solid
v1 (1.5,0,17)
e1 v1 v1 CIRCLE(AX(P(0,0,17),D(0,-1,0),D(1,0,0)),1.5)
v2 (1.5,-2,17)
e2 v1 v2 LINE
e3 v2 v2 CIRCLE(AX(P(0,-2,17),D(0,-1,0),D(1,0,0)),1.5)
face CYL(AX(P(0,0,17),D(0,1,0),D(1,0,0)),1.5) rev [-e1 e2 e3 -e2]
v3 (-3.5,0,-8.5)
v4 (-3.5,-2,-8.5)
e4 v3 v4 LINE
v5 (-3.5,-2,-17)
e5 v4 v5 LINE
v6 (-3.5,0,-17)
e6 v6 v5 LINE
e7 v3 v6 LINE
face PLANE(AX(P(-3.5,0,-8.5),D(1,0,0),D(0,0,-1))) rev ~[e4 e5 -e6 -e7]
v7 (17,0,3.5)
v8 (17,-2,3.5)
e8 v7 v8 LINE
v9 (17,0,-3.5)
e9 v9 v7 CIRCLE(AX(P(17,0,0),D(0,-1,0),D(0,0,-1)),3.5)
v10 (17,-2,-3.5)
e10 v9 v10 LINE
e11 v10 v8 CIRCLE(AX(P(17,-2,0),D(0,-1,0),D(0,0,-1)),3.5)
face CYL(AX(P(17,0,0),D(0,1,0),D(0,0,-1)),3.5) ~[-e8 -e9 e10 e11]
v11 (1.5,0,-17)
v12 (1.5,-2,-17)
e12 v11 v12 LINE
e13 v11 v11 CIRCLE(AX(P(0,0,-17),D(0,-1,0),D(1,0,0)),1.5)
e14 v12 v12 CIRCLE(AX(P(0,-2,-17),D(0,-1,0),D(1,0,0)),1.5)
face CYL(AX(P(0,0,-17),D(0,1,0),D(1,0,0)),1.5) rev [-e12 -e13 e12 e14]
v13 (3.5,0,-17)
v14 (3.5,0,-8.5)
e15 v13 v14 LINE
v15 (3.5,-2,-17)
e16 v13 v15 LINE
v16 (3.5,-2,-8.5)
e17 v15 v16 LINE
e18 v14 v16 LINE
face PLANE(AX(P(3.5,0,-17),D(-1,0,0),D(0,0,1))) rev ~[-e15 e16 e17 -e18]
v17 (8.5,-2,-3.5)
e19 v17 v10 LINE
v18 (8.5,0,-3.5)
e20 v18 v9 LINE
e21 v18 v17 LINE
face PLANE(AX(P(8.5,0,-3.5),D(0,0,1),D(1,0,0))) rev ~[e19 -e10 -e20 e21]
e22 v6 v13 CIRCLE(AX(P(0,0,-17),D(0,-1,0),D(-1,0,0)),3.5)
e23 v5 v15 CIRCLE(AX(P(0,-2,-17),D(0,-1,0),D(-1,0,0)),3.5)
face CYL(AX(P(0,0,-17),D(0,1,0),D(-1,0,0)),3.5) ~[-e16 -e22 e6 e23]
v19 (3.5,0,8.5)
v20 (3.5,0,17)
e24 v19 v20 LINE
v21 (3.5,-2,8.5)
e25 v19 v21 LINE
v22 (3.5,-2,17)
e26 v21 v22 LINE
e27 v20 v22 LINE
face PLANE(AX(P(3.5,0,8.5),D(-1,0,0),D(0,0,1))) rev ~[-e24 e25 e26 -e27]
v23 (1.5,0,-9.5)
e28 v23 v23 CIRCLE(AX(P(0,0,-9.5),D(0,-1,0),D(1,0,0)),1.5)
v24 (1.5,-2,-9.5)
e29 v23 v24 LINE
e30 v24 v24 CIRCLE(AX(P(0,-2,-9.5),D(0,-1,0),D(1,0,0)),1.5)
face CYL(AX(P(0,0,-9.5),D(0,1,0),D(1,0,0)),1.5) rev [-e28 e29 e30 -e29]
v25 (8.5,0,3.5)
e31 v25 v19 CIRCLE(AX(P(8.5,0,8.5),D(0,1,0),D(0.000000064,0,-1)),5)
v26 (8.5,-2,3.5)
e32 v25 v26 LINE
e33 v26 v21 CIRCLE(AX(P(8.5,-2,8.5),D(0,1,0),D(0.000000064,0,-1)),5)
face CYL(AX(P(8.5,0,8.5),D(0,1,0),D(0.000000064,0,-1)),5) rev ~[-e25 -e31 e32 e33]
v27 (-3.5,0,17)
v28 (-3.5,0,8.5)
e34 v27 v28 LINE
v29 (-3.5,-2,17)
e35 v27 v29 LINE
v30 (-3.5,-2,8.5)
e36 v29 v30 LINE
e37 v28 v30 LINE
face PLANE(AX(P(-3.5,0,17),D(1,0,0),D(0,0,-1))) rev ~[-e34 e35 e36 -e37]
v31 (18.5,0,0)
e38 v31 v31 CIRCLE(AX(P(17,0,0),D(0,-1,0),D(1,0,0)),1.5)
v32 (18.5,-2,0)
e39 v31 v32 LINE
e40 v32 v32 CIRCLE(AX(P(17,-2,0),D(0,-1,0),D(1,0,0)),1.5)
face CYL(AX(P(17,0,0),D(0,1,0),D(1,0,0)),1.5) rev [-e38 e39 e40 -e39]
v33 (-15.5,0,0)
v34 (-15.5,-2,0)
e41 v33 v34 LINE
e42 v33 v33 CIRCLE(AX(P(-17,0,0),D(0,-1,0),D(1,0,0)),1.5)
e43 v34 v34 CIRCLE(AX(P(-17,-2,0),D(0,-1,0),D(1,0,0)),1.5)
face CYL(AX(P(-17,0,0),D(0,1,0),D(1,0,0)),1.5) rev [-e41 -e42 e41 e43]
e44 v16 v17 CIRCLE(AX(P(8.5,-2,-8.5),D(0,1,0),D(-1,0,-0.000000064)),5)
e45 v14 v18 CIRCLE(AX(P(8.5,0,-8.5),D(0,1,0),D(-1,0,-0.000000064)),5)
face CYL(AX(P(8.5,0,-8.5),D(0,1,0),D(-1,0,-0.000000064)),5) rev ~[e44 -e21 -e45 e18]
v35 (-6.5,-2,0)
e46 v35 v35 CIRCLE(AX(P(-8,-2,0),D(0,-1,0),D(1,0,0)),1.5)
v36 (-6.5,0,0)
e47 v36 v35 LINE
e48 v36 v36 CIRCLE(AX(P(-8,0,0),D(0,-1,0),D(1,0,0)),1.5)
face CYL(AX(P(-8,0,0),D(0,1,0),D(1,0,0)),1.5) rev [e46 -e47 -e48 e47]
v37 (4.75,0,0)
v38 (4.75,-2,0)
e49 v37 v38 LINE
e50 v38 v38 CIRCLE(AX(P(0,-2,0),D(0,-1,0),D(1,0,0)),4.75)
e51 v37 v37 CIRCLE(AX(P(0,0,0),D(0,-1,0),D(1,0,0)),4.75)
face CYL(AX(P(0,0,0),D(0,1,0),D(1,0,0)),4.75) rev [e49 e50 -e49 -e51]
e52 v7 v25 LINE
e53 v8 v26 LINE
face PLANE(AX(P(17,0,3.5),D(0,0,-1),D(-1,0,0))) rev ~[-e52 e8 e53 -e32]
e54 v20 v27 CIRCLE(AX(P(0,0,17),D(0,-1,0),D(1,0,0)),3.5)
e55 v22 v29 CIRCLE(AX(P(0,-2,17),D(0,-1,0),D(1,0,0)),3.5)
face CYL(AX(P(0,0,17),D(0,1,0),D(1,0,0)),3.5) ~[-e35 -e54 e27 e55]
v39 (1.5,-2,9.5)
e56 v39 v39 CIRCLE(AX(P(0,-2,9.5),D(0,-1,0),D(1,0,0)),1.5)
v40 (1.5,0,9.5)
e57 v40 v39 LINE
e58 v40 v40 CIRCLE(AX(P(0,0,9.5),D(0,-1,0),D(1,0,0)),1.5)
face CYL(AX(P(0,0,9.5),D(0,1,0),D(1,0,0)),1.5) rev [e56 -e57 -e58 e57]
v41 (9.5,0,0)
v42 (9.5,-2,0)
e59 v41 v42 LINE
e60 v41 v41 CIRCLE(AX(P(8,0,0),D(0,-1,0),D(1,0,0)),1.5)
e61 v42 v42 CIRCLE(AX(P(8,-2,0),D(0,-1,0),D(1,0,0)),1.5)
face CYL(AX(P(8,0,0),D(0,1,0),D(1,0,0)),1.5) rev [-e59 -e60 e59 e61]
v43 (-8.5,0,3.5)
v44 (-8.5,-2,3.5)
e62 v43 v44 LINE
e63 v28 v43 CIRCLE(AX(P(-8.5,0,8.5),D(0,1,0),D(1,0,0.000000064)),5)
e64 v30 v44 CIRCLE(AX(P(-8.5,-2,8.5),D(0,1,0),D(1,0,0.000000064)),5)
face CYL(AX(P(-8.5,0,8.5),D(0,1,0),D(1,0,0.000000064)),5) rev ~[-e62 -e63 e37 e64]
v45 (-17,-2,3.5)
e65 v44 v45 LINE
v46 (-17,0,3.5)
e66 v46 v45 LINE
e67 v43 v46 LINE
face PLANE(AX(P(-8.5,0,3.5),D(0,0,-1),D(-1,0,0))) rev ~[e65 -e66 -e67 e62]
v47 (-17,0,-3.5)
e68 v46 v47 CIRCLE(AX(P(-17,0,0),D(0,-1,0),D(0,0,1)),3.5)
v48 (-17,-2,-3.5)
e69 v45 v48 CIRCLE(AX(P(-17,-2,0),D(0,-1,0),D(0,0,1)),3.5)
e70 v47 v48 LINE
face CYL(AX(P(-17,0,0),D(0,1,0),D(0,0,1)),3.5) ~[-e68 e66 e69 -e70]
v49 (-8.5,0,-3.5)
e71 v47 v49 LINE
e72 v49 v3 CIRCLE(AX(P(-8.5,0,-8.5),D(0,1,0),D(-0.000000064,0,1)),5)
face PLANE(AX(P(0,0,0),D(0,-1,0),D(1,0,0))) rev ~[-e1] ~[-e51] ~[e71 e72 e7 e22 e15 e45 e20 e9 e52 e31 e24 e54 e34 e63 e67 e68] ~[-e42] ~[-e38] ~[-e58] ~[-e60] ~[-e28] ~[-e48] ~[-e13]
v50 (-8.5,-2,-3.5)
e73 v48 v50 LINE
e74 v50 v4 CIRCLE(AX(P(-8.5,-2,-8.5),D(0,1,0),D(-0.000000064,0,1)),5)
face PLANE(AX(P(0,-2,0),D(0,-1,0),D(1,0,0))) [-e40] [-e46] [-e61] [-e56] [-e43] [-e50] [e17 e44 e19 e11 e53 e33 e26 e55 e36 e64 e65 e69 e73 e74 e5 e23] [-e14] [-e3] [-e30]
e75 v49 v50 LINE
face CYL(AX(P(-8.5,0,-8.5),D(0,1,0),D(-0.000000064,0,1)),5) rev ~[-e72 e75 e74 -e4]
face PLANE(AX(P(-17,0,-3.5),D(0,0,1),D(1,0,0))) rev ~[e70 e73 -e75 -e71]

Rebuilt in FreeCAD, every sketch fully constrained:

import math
import FreeCAD as App
import Part
import Sketcher
from FreeCAD import Vector

doc = App.newDocument("Part")
body = doc.addObject("PartDesign::Body", "Body")

sketch1 = body.newObject("Sketcher::SketchObject", "Sketch")
sketch1.AttachmentSupport = (doc.getObject("XZ_Plane"), [""])
sketch1.MapMode = "FlatFace"
sketch1.addGeometry([
    Part.LineSegment(Vector(-8.5, 3.5, 0), Vector(-17, 3.5, 0)),
    Part.ArcOfCircle(Part.Circle(Vector(-17, 0, 0), Vector(0, 0, 1), 3.5), math.radians(90), math.radians(270)),
    Part.LineSegment(Vector(-17, -3.5, 0), Vector(-8.5, -3.5, 0)),
    Part.ArcOfCircle(Part.Circle(Vector(-8.5, -8.5, 0), Vector(0, 0, 1), 5), math.radians(-0.000004), math.radians(90.000004)),
    Part.LineSegment(Vector(-3.5, -8.5, 0), Vector(-3.5, -17, 0)),
    Part.ArcOfCircle(Part.Circle(Vector(0, -17, 0), Vector(0, 0, 1), 3.5), math.radians(180), math.radians(360)),
    Part.LineSegment(Vector(3.5, -17, 0), Vector(3.5, -8.5, 0)),
    Part.ArcOfCircle(Part.Circle(Vector(8.5, -8.5, 0), Vector(0, 0, 1), 5), math.radians(89.999996), math.radians(180.000004)),
    Part.LineSegment(Vector(8.5, -3.5, 0), Vector(17, -3.5, 0)),
    Part.ArcOfCircle(Part.Circle(Vector(17, 0, 0), Vector(0, 0, 1), 3.5), math.radians(-90), math.radians(90)),
    Part.LineSegment(Vector(17, 3.5, 0), Vector(8.5, 3.5, 0)),
    Part.ArcOfCircle(Part.Circle(Vector(8.5, 8.5, 0), Vector(0, 0, 1), 5), math.radians(179.999996), math.radians(270.000004)),
    Part.LineSegment(Vector(3.5, 8.5, 0), Vector(3.5, 17, 0)),
    Part.ArcOfCircle(Part.Circle(Vector(0, 17, 0), Vector(0, 0, 1), 3.5), math.radians(0), math.radians(180)),
    Part.LineSegment(Vector(-3.5, 17, 0), Vector(-3.5, 8.5, 0)),
    Part.ArcOfCircle(Part.Circle(Vector(-8.5, 8.5, 0), Vector(0, 0, 1), 5), math.radians(-90.000004), math.radians(0.000004)),
    Part.Circle(Vector(0, -17, 0), Vector(0, 0, 1), 1.5),
    Part.Circle(Vector(0, -9.5, 0), Vector(0, 0, 1), 1.5),
    Part.Circle(Vector(-17, 0, 0), Vector(0, 0, 1), 1.5),
    Part.Circle(Vector(-8, 0, 0), Vector(0, 0, 1), 1.5),
    Part.Circle(Vector(0, 0, 0), Vector(0, 0, 1), 4.75),
    Part.Circle(Vector(8, 0, 0), Vector(0, 0, 1), 1.5),
    Part.Circle(Vector(17, 0, 0), Vector(0, 0, 1), 1.5),
    Part.Circle(Vector(0, 9.5, 0), Vector(0, 0, 1), 1.5),
    Part.Circle(Vector(0, 17, 0), Vector(0, 0, 1), 1.5),
], False)
sketch1.addConstraint([
    Sketcher.Constraint("Tangent", 0, 2, 1, 1),
    Sketcher.Constraint("Tangent", 1, 2, 2, 1),
    Sketcher.Constraint("Tangent", 2, 2, 3, 2),
    Sketcher.Constraint("Tangent", 3, 1, 4, 1),
    Sketcher.Constraint("Tangent", 4, 2, 5, 1),
    Sketcher.Constraint("Tangent", 5, 2, 6, 1),
    Sketcher.Constraint("Tangent", 6, 2, 7, 2),
    Sketcher.Constraint("Tangent", 7, 1, 8, 1),
    Sketcher.Constraint("Tangent", 8, 2, 9, 1),
    Sketcher.Constraint("Tangent", 9, 2, 10, 1),
    Sketcher.Constraint("Tangent", 10, 2, 11, 2),
    Sketcher.Constraint("Tangent", 11, 1, 12, 1),
    Sketcher.Constraint("Tangent", 12, 2, 13, 1),
    Sketcher.Constraint("Tangent", 13, 2, 14, 1),
    Sketcher.Constraint("Tangent", 14, 2, 15, 2),
    Sketcher.Constraint("Tangent", 15, 1, 0, 1),
    Sketcher.Constraint("Horizontal", 0),
    Sketcher.Constraint("Horizontal", 2),
    Sketcher.Constraint("Vertical", 4),
    Sketcher.Constraint("Vertical", 6),
    Sketcher.Constraint("Horizontal", 8),
    Sketcher.Constraint("Horizontal", 10),
    Sketcher.Constraint("Vertical", 12),
    Sketcher.Constraint("Vertical", 14),
    Sketcher.Constraint("Coincident", 20, 3, -1, 1),
    Sketcher.Constraint("Coincident", 16, 3, 5, 3),
    Sketcher.Constraint("Coincident", 18, 3, 1, 3),
    Sketcher.Constraint("Coincident", 22, 3, 9, 3),
    Sketcher.Constraint("Coincident", 24, 3, 13, 3),
    Sketcher.Constraint("Equal", 1, 5),
    Sketcher.Constraint("Equal", 3, 7),
    Sketcher.Constraint("Equal", 5, 9),
    Sketcher.Constraint("Equal", 7, 11),
    Sketcher.Constraint("Equal", 9, 13),
    Sketcher.Constraint("Equal", 11, 15),
    Sketcher.Constraint("Equal", 16, 17),
    Sketcher.Constraint("Equal", 17, 18),
    Sketcher.Constraint("Equal", 18, 19),
    Sketcher.Constraint("Equal", 19, 21),
    Sketcher.Constraint("Equal", 21, 22),
    Sketcher.Constraint("Equal", 22, 23),
    Sketcher.Constraint("Equal", 23, 24),
    Sketcher.Constraint("Symmetric", 1, 3, 9, 3, -1, 1),
    Sketcher.Constraint("Symmetric", 5, 3, 13, 3, -1, 1),
    Sketcher.Constraint("Symmetric", 19, 3, 21, 3, -1, 1),
    Sketcher.Constraint("Symmetric", 17, 3, 23, 3, -1, 1),
    Sketcher.Constraint("Symmetric", 3, 3, 7, 3, -2),
    Sketcher.Constraint("PointOnObject", 17, 3, -2),
    Sketcher.Constraint("PointOnObject", 19, 3, -1),
    Sketcher.Constraint("Equal", 10, 4),
    Sketcher.Constraint("Diameter", 16, 3.0),
    Sketcher.Constraint("Radius", 3, 5.0),
    Sketcher.Constraint("Diameter", 20, 9.5),
    Sketcher.Constraint("Radius", 1, 3.5),
    Sketcher.Constraint("DistanceX", 0, 2, 0, 1, 8.5),
    Sketcher.Constraint("DistanceX", 19, 3, -1, 1, 8.0),
    Sketcher.Constraint("DistanceY", 17, 3, 3, 3, 1.0),
])
pad1 = body.newObject("PartDesign::Pad", "Pad")
pad1.Profile = sketch1
pad1.Length = 2

doc.recompute()
